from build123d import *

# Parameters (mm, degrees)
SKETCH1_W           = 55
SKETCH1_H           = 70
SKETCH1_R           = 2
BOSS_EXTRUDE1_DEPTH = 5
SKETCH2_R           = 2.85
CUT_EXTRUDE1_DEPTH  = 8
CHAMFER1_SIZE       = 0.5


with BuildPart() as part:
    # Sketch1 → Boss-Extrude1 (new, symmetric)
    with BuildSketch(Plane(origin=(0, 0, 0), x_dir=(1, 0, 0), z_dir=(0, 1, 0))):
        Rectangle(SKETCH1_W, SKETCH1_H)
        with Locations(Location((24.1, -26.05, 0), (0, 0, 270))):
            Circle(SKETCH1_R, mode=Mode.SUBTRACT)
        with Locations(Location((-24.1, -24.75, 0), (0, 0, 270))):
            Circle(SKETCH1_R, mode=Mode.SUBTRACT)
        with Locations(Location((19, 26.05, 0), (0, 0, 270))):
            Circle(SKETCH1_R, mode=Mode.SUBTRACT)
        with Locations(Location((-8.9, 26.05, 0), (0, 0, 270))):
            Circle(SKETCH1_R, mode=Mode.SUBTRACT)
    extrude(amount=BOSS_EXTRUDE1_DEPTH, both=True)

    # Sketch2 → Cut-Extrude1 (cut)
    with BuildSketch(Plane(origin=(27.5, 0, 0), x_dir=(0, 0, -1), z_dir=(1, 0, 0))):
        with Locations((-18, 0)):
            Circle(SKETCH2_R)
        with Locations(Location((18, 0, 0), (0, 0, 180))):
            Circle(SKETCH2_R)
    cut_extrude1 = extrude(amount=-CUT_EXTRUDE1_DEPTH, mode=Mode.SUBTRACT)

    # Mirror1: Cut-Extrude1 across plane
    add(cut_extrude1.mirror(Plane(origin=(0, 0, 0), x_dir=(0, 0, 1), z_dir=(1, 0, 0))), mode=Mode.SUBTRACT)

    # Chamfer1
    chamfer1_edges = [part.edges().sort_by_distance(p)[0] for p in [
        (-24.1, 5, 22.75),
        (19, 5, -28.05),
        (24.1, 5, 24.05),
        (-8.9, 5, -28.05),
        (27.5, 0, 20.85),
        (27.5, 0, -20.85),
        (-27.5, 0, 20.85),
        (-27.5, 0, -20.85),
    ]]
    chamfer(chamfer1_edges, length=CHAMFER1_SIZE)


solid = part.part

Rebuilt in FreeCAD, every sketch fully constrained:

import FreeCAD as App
import Part
import Sketcher

V = App.Vector


def edges_at(feature, points):
    """Names of the edges that pass closest to the given points."""
    edges = feature.Shape.Edges
    near = lambda p: min(range(len(edges)), key=lambda i: edges[i].distToShape(Part.Vertex(*p))[0])
    return sorted({f"Edge{near(p) + 1}" for p in points})

doc = App.newDocument("Part")
body = doc.addObject("PartDesign::Body", "Body")

# Sketch on XZ plane
sketch1 = body.newObject("Sketcher::SketchObject", "Sketch")
sketch1.AttachmentSupport = (doc.getObject("XZ_Plane"), [""])
sketch1.MapMode = "FlatFace"
sketch1.addGeometry([
    Part.LineSegment(V(-27.5, -35, 0), V(-27.5, 35, 0)),  # 0
    Part.LineSegment(V(-27.5, 35, 0), V(27.5, 35, 0)),  # 1
    Part.LineSegment(V(27.5, 35, 0), V(27.5, -35, 0)),  # 2
    Part.LineSegment(V(27.5, -35, 0), V(-27.5, -35, 0)),  # 3
    Part.Circle(V(-24.1, 24.8, 0), V(0, 0, 1), 2),  # 4
    Part.Circle(V(24.1, 26.1, 0), V(0, 0, 1), 2),  # 5
    Part.Circle(V(-8.9, -26.1, 0), V(0, 0, 1), 2),  # 6
    Part.Circle(V(19, -26.1, 0), V(0, 0, 1), 2),  # 7
], False)
sketch1.addConstraint([
    Sketcher.Constraint("Coincident", 0, 2, 1, 1),
    Sketcher.Constraint("Coincident", 1, 2, 2, 1),
    Sketcher.Constraint("Coincident", 2, 2, 3, 1),
    Sketcher.Constraint("Coincident", 3, 2, 0, 1),
    Sketcher.Constraint("Vertical", 0),
    Sketcher.Constraint("Horizontal", 1),
    Sketcher.Constraint("Vertical", 2),
    Sketcher.Constraint("Horizontal", 3),
    Sketcher.Constraint("Equal", 4, 5),
    Sketcher.Constraint("Equal", 5, 6),
    Sketcher.Constraint("Equal", 6, 7),
    Sketcher.Constraint("Symmetric", 0, 2, 2, 2, -1, 1),
    Sketcher.Constraint("Horizontal", 6, 3, 7, 3),
    Sketcher.Constraint("Diameter", 4, 4.0),
    Sketcher.Constraint("DistanceX", 1, 1, 1, 2, 55.0),
    Sketcher.Constraint("DistanceY", 0, 1, 0, 2, 70.0),
    Sketcher.Constraint("DistanceX", -1, 1, 7, 3, 19.0),
    Sketcher.Constraint("DistanceX", 6, 3, 5, 3, 33.0),
    Sketcher.Constraint("DistanceX", 4, 3, -1, 1, 24.1),
    Sketcher.Constraint("DistanceX", -1, 1, 5, 3, 24.1),
    Sketcher.Constraint("DistanceY", 4, 3, 5, 3, 1.3),
    Sketcher.Constraint("DistanceY", 6, 3, 4, 3, 50.8),
    Sketcher.Constraint("DistanceY", -1, 1, 4, 3, 24.75),
])
pad1 = body.newObject("PartDesign::Pad", "Pad")
pad1.Profile = sketch1
pad1.Length = 10
pad1.Midplane = True

# Sketch on YZ plane
sketch2 = body.newObject("Sketcher::SketchObject", "Sketch001")
sketch2.AttachmentSupport = (doc.getObject("YZ_Plane"), [""])
sketch2.MapMode = "FlatFace"
sketch2.AttachmentOffset = App.Placement(V(0, 0, 27.5), App.Rotation())
sketch2.addGeometry([
    Part.Circle(V(0, 18, 0), V(0, 0, 1), 2.9),
    Part.Circle(V(0, -18, 0), V(0, 0, 1), 2.9),
], False)
sketch2.addConstraint([
    Sketcher.Constraint("Equal", 0, 1),
    Sketcher.Constraint("Symmetric", 0, 3, 1, 3, -1, 1),
    Sketcher.Constraint("PointOnObject", 0, 3, -2),
    Sketcher.Constraint("Diameter", 0, 5.7),
    Sketcher.Constraint("DistanceY", -1, 1, 0, 3, 18.0),
])
pocket1 = body.newObject("PartDesign::Pocket", "Pocket")
pocket1.Profile = sketch2
pocket1.Length = 8
doc.recompute()

mirrored = body.newObject("PartDesign::Mirrored", "Mirrored")
mirrored.Originals = [pocket1]
mirrored.MirrorPlane = (doc.getObject("YZ_Plane"), [""])
body.Tip = mirrored
doc.recompute()

chamfer = body.newObject("PartDesign::Chamfer", "Chamfer")
chamfer.Base = (mirrored, edges_at(mirrored, [
    (-24.1, 5, 22.75),
    (19, 5, -28.05),
    (24.1, 5, 24.05),
    (-8.9, 5, -28.05),
    (27.5, 0, 20.85),
    (27.5, 0, -20.85),
    (-27.5, 0, 20.85),
    (-27.5, 0, -20.85),
]))
chamfer.Size = 0.5

doc.recompute()
